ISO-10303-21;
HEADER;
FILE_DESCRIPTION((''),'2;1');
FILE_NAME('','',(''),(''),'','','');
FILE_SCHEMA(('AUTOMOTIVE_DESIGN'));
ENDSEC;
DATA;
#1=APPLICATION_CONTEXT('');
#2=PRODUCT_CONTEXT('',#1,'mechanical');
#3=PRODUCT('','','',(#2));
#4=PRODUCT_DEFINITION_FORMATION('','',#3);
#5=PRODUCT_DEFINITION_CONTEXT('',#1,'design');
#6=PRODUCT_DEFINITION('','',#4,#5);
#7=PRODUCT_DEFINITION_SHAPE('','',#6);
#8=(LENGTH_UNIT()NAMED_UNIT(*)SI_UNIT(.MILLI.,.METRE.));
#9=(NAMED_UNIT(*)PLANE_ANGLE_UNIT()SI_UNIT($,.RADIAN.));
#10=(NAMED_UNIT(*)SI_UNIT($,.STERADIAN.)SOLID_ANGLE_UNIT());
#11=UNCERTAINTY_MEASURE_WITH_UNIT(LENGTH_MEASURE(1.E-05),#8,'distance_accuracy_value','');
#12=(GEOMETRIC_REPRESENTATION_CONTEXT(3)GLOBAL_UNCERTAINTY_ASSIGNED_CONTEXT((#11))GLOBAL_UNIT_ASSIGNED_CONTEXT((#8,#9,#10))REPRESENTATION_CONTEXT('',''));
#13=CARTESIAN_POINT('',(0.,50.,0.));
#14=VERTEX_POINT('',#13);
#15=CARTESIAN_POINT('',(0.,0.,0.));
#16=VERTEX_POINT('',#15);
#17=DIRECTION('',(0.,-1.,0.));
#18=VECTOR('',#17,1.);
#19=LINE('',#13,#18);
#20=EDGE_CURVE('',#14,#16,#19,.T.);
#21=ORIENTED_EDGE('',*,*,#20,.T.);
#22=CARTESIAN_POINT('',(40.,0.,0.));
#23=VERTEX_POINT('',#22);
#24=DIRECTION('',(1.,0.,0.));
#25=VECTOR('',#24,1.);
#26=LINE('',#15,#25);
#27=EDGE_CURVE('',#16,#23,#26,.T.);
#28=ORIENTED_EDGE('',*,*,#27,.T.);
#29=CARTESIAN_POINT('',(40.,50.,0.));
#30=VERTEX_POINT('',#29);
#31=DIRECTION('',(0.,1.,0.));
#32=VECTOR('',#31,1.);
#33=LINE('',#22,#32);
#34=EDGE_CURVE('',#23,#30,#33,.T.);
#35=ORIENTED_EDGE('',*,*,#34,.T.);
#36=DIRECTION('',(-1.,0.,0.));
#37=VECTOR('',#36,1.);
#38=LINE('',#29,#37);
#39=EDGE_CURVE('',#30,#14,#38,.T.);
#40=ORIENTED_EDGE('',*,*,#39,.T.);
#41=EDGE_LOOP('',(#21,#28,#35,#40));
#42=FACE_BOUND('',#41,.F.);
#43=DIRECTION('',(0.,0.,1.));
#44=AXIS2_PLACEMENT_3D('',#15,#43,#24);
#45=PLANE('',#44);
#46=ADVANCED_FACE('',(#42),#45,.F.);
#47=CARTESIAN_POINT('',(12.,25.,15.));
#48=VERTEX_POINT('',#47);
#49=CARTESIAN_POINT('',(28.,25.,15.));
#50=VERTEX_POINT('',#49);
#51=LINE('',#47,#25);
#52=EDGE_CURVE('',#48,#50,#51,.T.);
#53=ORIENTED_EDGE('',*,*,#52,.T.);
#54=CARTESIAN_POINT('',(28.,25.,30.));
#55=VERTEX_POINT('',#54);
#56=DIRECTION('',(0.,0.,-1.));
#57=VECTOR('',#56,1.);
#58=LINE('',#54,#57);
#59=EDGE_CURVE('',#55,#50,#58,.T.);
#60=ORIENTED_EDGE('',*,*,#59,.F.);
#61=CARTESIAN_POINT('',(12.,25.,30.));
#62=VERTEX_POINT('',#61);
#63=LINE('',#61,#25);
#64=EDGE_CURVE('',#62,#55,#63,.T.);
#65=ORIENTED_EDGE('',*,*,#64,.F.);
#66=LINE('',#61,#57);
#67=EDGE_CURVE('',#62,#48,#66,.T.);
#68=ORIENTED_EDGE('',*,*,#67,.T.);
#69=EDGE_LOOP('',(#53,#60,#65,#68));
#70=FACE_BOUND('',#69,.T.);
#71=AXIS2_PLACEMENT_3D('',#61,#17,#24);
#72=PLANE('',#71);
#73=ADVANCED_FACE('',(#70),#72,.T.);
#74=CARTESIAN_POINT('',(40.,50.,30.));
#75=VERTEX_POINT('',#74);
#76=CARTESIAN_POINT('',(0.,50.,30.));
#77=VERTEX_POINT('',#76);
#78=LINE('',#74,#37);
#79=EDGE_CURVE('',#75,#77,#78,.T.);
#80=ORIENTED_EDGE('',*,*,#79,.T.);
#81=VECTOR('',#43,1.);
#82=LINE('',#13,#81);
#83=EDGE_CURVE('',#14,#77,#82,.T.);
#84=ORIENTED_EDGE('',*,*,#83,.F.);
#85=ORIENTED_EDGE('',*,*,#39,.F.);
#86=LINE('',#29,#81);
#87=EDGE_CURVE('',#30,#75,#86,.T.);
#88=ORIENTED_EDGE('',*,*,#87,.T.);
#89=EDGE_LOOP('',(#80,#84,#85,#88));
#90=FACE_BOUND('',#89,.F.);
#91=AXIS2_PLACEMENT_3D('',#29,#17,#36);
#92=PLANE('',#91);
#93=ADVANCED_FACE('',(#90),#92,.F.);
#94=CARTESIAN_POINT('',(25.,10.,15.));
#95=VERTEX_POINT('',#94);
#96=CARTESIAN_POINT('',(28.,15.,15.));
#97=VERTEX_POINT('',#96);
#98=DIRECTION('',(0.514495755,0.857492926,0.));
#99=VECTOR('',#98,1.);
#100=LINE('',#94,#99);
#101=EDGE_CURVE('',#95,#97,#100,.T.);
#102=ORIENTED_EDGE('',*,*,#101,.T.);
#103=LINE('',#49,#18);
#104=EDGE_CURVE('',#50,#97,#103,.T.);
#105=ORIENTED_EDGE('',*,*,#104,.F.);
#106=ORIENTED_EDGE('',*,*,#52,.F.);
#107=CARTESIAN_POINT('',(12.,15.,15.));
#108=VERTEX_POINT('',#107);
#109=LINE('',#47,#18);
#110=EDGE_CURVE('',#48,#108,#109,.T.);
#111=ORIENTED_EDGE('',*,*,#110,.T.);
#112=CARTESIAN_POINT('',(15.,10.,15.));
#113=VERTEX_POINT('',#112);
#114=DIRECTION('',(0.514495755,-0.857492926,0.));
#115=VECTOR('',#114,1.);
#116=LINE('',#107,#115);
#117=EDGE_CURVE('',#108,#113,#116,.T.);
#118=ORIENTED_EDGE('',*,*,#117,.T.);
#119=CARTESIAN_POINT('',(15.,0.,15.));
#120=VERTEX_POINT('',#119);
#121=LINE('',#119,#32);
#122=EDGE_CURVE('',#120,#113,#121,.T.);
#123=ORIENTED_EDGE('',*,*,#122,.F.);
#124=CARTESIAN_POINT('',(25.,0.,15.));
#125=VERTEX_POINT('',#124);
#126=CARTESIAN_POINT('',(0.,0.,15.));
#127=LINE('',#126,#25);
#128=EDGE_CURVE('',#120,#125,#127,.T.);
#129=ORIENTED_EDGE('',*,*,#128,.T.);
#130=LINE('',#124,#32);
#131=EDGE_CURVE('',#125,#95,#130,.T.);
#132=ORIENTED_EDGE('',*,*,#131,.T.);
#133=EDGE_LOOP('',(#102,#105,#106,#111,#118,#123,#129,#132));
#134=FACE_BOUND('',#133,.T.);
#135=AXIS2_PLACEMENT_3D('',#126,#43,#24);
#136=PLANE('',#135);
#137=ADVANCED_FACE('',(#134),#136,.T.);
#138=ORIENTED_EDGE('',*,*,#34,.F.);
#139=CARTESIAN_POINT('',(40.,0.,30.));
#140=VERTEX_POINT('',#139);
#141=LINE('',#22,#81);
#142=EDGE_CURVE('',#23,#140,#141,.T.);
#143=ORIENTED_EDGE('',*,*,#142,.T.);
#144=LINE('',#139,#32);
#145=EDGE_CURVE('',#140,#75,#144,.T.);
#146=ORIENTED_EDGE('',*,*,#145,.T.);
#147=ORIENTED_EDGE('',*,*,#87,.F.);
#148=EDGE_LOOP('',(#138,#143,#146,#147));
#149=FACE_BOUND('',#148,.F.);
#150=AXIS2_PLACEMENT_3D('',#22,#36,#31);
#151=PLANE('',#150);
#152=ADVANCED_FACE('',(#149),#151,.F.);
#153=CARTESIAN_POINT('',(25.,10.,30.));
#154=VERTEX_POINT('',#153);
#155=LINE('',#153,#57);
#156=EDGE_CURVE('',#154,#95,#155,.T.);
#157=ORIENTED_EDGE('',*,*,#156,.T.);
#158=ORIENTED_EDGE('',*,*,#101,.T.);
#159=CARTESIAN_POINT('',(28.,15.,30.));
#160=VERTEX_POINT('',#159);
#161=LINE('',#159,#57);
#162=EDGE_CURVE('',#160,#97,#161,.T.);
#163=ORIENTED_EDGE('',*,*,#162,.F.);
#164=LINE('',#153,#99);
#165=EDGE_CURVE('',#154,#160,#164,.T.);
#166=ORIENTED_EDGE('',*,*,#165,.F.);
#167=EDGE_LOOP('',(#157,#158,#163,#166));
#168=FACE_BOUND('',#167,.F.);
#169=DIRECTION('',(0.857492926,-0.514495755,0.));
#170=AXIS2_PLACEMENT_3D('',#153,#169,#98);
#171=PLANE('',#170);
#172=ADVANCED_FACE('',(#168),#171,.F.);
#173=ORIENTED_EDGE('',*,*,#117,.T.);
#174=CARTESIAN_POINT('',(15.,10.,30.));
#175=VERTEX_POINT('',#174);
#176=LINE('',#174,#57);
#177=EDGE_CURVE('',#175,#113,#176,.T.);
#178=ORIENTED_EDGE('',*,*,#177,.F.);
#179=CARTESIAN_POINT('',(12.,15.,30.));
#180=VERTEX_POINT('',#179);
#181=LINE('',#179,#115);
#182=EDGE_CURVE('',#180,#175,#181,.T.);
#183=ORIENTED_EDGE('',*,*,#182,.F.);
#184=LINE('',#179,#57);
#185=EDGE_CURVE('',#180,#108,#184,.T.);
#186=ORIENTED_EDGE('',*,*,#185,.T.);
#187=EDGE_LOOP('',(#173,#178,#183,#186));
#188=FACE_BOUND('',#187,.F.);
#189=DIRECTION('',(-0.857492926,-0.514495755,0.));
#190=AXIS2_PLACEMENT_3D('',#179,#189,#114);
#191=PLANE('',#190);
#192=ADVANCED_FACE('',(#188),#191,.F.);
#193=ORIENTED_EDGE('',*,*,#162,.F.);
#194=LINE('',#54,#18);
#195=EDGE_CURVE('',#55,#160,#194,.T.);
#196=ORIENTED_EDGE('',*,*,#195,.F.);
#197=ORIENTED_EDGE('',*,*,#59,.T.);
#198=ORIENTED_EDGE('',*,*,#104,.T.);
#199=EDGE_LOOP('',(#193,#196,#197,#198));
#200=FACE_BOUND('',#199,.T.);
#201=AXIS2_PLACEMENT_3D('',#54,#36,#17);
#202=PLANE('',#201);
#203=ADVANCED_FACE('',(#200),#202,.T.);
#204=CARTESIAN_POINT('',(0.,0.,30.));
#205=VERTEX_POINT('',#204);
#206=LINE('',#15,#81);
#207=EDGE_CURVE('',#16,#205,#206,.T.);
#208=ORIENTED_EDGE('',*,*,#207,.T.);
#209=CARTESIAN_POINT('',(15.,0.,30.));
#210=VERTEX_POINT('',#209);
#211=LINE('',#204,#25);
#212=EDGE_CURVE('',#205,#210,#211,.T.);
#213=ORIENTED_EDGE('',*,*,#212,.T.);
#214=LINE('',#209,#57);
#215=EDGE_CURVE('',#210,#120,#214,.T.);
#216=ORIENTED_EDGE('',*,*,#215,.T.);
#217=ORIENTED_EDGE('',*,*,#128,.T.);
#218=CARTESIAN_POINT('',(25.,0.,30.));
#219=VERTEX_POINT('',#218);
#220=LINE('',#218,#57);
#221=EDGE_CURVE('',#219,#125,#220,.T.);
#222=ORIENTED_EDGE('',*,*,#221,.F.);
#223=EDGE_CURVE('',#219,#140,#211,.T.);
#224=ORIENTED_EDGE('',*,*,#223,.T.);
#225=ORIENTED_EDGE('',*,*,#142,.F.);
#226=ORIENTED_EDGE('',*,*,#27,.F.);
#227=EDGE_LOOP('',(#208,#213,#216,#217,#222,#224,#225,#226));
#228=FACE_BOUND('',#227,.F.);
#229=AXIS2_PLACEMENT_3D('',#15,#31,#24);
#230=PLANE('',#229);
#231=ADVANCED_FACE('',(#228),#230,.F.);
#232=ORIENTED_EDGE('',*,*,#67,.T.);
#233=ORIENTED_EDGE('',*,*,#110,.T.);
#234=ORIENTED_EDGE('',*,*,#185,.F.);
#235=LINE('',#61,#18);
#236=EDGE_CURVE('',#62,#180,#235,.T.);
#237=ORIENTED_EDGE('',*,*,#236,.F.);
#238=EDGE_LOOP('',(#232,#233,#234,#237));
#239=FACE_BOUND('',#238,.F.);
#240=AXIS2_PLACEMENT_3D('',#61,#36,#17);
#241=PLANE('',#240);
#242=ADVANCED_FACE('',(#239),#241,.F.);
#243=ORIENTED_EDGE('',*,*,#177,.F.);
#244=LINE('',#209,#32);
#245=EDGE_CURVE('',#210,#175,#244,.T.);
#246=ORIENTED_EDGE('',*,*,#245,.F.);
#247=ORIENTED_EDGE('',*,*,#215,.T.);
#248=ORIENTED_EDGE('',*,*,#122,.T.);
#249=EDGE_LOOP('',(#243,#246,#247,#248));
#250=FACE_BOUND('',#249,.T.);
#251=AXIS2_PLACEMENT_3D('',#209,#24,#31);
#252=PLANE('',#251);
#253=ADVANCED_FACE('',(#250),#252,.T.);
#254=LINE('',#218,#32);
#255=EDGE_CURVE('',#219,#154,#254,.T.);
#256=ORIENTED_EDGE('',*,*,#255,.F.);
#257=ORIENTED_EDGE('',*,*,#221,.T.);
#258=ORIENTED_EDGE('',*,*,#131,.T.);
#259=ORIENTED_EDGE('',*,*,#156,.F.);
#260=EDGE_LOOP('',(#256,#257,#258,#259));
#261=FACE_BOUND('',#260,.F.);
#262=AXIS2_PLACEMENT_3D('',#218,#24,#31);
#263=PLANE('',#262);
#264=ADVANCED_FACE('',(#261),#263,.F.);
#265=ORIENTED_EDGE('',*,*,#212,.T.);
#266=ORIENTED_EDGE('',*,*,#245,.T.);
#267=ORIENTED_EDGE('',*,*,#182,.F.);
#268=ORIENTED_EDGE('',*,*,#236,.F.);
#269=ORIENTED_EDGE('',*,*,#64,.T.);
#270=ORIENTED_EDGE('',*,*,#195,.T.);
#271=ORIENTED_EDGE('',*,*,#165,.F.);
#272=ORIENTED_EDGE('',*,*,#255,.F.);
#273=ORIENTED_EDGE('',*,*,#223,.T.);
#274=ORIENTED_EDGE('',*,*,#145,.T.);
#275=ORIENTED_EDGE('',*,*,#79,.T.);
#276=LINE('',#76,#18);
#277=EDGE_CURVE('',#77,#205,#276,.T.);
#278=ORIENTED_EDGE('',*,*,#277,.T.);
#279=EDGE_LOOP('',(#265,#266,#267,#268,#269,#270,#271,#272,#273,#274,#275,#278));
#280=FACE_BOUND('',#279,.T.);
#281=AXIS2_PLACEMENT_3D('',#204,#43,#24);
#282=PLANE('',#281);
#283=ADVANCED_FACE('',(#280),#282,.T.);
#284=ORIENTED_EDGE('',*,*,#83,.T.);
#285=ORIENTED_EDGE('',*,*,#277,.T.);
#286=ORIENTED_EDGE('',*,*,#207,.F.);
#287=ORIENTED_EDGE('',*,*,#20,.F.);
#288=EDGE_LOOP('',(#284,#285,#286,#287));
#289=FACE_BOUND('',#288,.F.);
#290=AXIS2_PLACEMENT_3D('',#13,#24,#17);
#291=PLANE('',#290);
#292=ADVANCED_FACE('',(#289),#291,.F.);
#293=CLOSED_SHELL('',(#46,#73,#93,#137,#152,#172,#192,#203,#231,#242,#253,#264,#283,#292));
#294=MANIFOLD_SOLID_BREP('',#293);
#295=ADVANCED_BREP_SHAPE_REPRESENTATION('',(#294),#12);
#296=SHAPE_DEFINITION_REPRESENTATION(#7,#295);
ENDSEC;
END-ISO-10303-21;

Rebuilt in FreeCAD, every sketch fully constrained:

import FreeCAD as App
import Part
import Sketcher

V = App.Vector
Q = App.Units.Quantity


def add_polygon(sketch, points):
    """Adds a closed chain of lines whose ends are joined by coincident constraints."""
    first, n = sketch.GeometryCount, len(points)
    for a, b in zip(points, points[1:] + points[:1]):
        sketch.addGeometry(Part.LineSegment(App.Vector(*a, 0), App.Vector(*b, 0)), False)
    for i in range(n):
        sketch.addConstraint(Sketcher.Constraint("Coincident", first + i, 2, first + (i + 1) % n, 1))

doc = App.newDocument("Part")
body = doc.addObject("PartDesign::Body", "Body")

sketch1 = doc.addObject("Sketcher::SketchObject", "Sketch")
body.addObject(sketch1)
sketch1.AttachmentSupport = (doc.XY_Plane, [""])
sketch1.MapMode = "FlatFace"
add_polygon(sketch1, [(0, 50), (0, 0), (40, 0), (40, 50)])
sketch1.addConstraint([
    Sketcher.Constraint("Vertical", 0),
    Sketcher.Constraint("Horizontal", 1),
    Sketcher.Constraint("Vertical", 2),
    Sketcher.Constraint("Horizontal", 3),
    Sketcher.Constraint("Coincident", 0, 2, -1, 1),
    Sketcher.Constraint("DistanceX", 1, 1, 1, 2, Q("40 mm")),
    Sketcher.Constraint("DistanceY", 0, 2, 0, 1, Q("50 mm")),
])
pad1 = doc.addObject("PartDesign::Pad", "Pad")
body.addObject(pad1)
pad1.Profile = sketch1
pad1.Length = 30

sketch2 = doc.addObject("Sketcher::SketchObject", "Sketch001")
body.addObject(sketch2)
sketch2.AttachmentSupport = (doc.XY_Plane, [""])
sketch2.MapMode = "FlatFace"
sketch2.AttachmentOffset = App.Placement(V(0, 0, 30), App.Rotation())
add_polygon(sketch2, [(15, 10), (15, 0), (25, 0), (25, 10), (28, 15), (28, 25), (12, 25), (12, 15)])
sketch2.addConstraint([
    Sketcher.Constraint("Vertical", 0),
    Sketcher.Constraint("Horizontal", 1),
    Sketcher.Constraint("Vertical", 2),
    Sketcher.Constraint("Vertical", 4),
    Sketcher.Constraint("Horizontal", 5),
    Sketcher.Constraint("Vertical", 6),
    Sketcher.Constraint("PointOnObject", 0, 2, -1),
    Sketcher.Constraint("Horizontal", 3, 2, 6, 2),
    Sketcher.Constraint("Horizontal", 2, 2, 7, 2),
    Sketcher.Constraint("Equal", 1, 0),
    Sketcher.Constraint("Equal", 2, 4),
    Sketcher.Constraint("Equal", 3, 7),
    Sketcher.Constraint("DistanceX", 1, 1, 1, 2, Q("10 mm")),
    Sketcher.Constraint("DistanceX", 5, 2, 5, 1, Q("16 mm")),
    Sketcher.Constraint("DistanceX", -1, 1, 0, 2, Q("15 mm")),
    Sketcher.Constraint("DistanceY", -1, 1, 3, 2, Q("15 mm")),
])
pocket1 = doc.addObject("PartDesign::Pocket", "Pocket")
body.addObject(pocket1)
pocket1.Profile = sketch2
pocket1.Length = 15

doc.recompute()
